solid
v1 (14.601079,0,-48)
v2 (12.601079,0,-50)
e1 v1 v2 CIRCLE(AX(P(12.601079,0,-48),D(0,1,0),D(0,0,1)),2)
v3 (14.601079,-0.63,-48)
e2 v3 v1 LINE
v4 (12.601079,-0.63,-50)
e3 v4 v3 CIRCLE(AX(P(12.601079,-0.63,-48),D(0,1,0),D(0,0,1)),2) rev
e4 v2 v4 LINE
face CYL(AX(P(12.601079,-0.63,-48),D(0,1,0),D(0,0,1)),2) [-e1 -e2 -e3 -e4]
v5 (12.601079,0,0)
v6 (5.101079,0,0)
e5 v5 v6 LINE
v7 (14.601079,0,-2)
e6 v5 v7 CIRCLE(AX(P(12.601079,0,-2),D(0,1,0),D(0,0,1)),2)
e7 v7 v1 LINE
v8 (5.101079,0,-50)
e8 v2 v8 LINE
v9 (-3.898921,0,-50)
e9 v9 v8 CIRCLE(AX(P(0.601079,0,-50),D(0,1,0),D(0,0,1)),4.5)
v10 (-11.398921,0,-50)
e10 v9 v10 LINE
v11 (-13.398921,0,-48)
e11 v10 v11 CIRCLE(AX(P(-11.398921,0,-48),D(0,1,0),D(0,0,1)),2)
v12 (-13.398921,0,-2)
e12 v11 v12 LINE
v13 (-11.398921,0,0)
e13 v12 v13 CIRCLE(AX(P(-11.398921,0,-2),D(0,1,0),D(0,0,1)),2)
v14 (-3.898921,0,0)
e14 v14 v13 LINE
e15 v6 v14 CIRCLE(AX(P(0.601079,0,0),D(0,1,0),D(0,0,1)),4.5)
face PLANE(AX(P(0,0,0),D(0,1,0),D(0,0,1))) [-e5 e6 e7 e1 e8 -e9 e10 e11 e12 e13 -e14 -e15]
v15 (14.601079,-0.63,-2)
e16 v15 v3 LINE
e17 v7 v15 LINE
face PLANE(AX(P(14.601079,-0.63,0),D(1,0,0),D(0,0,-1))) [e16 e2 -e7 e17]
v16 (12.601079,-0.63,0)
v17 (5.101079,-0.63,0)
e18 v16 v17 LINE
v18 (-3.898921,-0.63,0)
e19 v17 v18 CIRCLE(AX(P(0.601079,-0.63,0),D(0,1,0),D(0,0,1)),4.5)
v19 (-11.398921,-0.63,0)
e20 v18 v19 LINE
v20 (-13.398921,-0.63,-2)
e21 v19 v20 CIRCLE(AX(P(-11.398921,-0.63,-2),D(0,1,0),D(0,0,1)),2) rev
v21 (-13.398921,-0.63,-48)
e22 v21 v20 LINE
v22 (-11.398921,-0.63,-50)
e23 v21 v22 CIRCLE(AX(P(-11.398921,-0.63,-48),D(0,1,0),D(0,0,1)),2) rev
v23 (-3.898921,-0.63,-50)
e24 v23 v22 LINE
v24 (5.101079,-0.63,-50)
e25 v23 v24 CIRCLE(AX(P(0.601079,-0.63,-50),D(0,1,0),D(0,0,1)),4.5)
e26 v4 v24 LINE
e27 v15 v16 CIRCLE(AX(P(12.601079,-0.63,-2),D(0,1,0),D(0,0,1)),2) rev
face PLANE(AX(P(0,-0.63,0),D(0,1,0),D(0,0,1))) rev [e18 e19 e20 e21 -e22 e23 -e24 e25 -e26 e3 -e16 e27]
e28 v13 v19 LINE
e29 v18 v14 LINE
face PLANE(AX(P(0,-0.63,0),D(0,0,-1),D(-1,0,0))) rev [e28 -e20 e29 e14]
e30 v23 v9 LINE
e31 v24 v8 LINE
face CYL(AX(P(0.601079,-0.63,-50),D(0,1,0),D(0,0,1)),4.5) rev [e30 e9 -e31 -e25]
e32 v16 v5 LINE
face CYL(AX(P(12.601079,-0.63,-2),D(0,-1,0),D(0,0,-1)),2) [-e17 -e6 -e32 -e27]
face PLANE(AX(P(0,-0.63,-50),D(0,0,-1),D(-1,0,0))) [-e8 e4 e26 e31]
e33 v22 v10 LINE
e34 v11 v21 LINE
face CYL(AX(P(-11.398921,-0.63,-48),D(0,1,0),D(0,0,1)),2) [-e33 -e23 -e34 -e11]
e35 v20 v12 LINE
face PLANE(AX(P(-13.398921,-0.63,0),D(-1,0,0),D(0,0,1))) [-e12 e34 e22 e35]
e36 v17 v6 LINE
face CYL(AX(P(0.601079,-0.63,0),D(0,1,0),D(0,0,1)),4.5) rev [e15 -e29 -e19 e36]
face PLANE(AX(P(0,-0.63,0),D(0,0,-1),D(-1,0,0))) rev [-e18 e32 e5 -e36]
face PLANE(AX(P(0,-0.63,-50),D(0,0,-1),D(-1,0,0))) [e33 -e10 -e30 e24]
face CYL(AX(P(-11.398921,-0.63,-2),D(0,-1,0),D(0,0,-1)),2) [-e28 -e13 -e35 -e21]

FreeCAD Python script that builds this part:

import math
import FreeCAD as App
import Part
import Sketcher
from FreeCAD import Vector
Q = App.Units.Quantity


def edges_at(feature, points):
    """Names of the edges that pass closest to the given points."""
    edges = feature.Shape.Edges
    near = lambda p: min(range(len(edges)), key=lambda i: edges[i].distToShape(Part.Vertex(*p))[0])
    return sorted({f"Edge{near(p) + 1}" for p in points})

doc = App.newDocument("Part")
body = doc.addObject("PartDesign::Body", "Body")

# Sketch on XZ plane
sketch1 = body.newObject("Sketcher::SketchObject", "Sketch")
sketch1.AttachmentSupport = (doc.getObject("XZ_Plane"), [""])
sketch1.MapMode = "FlatFace"
sketch1.addGeometry([
    Part.LineSegment(Vector(5.1, 0, 0), Vector(14.6, 0, 0)),  # 0
    Part.LineSegment(Vector(14.6, 0, 0), Vector(14.6, -50, 0)),  # 1
    Part.LineSegment(Vector(14.6, -50, 0), Vector(5.1, -50, 0)),  # 2
    Part.ArcOfCircle(Part.Circle(Vector(0.6, -50, 0), Vector(0, 0, 1), 4.5), math.radians(0), math.radians(180)),  # 3
    Part.LineSegment(Vector(-3.9, -50, 0), Vector(-13.4, -50, 0)),  # 4
    Part.LineSegment(Vector(-13.4, -50, 0), Vector(-13.4, 0, 0)),  # 5
    Part.LineSegment(Vector(-13.4, 0, 0), Vector(-3.9, 0, 0)),  # 6
    Part.ArcOfCircle(Part.Circle(Vector(0.6, 0, 0), Vector(0, 0, 1), 4.5), math.radians(180), math.radians(360)),  # 7
], False)
sketch1.addConstraint([
    Sketcher.Constraint("Coincident", 0, 2, 1, 1),
    Sketcher.Constraint("Coincident", 1, 2, 2, 1),
    Sketcher.Constraint("Coincident", 2, 2, 3, 1),
    Sketcher.Constraint("Coincident", 3, 2, 4, 1),
    Sketcher.Constraint("Coincident", 4, 2, 5, 1),
    Sketcher.Constraint("Coincident", 5, 2, 6, 1),
    Sketcher.Constraint("Coincident", 6, 2, 7, 1),
    Sketcher.Constraint("Coincident", 7, 2, 0, 1),
    Sketcher.Constraint("Horizontal", 0),
    Sketcher.Constraint("Vertical", 1),
    Sketcher.Constraint("Horizontal", 2),
    Sketcher.Constraint("Horizontal", 4),
    Sketcher.Constraint("Vertical", 5),
    Sketcher.Constraint("Horizontal", 6),
    Sketcher.Constraint("Equal", 3, 7),
    Sketcher.Constraint("PointOnObject", 7, 3, -1),
    Sketcher.Constraint("PointOnObject", 0, 2, -1),
    Sketcher.Constraint("PointOnObject", 5, 2, -1),
    Sketcher.Constraint("Horizontal", 3, 3, 1, 2),
    Sketcher.Constraint("Horizontal", 2, 2, 3, 2),
    Sketcher.Constraint("Vertical", 3, 3, 7, 3),
    Sketcher.Constraint("Equal", 2, 4),
    Sketcher.Constraint("Radius", 3, Q("4.5 mm")),
    Sketcher.Constraint("DistanceY", 1, 2, 1, 1, Q("50 mm")),
    Sketcher.Constraint("DistanceX", 0, 1, 0, 2, Q("9.5 mm")),
    Sketcher.Constraint("DistanceX", -1, 1, 3, 3, Q("0.601079 mm")),
])
pad1 = body.newObject("PartDesign::Pad", "Pad")
pad1.Profile = sketch1
pad1.Length = 0.63
doc.recompute()

fillet = body.newObject("PartDesign::Fillet", "Fillet")
fillet.Base = (pad1, edges_at(pad1, [
    (-13.399, -0.315, 0),
    (-13.399, -0.315, -50),
    (14.601, -0.315, -50),
    (14.601, -0.315, 0),
]))
fillet.Radius = 2

doc.recompute()
